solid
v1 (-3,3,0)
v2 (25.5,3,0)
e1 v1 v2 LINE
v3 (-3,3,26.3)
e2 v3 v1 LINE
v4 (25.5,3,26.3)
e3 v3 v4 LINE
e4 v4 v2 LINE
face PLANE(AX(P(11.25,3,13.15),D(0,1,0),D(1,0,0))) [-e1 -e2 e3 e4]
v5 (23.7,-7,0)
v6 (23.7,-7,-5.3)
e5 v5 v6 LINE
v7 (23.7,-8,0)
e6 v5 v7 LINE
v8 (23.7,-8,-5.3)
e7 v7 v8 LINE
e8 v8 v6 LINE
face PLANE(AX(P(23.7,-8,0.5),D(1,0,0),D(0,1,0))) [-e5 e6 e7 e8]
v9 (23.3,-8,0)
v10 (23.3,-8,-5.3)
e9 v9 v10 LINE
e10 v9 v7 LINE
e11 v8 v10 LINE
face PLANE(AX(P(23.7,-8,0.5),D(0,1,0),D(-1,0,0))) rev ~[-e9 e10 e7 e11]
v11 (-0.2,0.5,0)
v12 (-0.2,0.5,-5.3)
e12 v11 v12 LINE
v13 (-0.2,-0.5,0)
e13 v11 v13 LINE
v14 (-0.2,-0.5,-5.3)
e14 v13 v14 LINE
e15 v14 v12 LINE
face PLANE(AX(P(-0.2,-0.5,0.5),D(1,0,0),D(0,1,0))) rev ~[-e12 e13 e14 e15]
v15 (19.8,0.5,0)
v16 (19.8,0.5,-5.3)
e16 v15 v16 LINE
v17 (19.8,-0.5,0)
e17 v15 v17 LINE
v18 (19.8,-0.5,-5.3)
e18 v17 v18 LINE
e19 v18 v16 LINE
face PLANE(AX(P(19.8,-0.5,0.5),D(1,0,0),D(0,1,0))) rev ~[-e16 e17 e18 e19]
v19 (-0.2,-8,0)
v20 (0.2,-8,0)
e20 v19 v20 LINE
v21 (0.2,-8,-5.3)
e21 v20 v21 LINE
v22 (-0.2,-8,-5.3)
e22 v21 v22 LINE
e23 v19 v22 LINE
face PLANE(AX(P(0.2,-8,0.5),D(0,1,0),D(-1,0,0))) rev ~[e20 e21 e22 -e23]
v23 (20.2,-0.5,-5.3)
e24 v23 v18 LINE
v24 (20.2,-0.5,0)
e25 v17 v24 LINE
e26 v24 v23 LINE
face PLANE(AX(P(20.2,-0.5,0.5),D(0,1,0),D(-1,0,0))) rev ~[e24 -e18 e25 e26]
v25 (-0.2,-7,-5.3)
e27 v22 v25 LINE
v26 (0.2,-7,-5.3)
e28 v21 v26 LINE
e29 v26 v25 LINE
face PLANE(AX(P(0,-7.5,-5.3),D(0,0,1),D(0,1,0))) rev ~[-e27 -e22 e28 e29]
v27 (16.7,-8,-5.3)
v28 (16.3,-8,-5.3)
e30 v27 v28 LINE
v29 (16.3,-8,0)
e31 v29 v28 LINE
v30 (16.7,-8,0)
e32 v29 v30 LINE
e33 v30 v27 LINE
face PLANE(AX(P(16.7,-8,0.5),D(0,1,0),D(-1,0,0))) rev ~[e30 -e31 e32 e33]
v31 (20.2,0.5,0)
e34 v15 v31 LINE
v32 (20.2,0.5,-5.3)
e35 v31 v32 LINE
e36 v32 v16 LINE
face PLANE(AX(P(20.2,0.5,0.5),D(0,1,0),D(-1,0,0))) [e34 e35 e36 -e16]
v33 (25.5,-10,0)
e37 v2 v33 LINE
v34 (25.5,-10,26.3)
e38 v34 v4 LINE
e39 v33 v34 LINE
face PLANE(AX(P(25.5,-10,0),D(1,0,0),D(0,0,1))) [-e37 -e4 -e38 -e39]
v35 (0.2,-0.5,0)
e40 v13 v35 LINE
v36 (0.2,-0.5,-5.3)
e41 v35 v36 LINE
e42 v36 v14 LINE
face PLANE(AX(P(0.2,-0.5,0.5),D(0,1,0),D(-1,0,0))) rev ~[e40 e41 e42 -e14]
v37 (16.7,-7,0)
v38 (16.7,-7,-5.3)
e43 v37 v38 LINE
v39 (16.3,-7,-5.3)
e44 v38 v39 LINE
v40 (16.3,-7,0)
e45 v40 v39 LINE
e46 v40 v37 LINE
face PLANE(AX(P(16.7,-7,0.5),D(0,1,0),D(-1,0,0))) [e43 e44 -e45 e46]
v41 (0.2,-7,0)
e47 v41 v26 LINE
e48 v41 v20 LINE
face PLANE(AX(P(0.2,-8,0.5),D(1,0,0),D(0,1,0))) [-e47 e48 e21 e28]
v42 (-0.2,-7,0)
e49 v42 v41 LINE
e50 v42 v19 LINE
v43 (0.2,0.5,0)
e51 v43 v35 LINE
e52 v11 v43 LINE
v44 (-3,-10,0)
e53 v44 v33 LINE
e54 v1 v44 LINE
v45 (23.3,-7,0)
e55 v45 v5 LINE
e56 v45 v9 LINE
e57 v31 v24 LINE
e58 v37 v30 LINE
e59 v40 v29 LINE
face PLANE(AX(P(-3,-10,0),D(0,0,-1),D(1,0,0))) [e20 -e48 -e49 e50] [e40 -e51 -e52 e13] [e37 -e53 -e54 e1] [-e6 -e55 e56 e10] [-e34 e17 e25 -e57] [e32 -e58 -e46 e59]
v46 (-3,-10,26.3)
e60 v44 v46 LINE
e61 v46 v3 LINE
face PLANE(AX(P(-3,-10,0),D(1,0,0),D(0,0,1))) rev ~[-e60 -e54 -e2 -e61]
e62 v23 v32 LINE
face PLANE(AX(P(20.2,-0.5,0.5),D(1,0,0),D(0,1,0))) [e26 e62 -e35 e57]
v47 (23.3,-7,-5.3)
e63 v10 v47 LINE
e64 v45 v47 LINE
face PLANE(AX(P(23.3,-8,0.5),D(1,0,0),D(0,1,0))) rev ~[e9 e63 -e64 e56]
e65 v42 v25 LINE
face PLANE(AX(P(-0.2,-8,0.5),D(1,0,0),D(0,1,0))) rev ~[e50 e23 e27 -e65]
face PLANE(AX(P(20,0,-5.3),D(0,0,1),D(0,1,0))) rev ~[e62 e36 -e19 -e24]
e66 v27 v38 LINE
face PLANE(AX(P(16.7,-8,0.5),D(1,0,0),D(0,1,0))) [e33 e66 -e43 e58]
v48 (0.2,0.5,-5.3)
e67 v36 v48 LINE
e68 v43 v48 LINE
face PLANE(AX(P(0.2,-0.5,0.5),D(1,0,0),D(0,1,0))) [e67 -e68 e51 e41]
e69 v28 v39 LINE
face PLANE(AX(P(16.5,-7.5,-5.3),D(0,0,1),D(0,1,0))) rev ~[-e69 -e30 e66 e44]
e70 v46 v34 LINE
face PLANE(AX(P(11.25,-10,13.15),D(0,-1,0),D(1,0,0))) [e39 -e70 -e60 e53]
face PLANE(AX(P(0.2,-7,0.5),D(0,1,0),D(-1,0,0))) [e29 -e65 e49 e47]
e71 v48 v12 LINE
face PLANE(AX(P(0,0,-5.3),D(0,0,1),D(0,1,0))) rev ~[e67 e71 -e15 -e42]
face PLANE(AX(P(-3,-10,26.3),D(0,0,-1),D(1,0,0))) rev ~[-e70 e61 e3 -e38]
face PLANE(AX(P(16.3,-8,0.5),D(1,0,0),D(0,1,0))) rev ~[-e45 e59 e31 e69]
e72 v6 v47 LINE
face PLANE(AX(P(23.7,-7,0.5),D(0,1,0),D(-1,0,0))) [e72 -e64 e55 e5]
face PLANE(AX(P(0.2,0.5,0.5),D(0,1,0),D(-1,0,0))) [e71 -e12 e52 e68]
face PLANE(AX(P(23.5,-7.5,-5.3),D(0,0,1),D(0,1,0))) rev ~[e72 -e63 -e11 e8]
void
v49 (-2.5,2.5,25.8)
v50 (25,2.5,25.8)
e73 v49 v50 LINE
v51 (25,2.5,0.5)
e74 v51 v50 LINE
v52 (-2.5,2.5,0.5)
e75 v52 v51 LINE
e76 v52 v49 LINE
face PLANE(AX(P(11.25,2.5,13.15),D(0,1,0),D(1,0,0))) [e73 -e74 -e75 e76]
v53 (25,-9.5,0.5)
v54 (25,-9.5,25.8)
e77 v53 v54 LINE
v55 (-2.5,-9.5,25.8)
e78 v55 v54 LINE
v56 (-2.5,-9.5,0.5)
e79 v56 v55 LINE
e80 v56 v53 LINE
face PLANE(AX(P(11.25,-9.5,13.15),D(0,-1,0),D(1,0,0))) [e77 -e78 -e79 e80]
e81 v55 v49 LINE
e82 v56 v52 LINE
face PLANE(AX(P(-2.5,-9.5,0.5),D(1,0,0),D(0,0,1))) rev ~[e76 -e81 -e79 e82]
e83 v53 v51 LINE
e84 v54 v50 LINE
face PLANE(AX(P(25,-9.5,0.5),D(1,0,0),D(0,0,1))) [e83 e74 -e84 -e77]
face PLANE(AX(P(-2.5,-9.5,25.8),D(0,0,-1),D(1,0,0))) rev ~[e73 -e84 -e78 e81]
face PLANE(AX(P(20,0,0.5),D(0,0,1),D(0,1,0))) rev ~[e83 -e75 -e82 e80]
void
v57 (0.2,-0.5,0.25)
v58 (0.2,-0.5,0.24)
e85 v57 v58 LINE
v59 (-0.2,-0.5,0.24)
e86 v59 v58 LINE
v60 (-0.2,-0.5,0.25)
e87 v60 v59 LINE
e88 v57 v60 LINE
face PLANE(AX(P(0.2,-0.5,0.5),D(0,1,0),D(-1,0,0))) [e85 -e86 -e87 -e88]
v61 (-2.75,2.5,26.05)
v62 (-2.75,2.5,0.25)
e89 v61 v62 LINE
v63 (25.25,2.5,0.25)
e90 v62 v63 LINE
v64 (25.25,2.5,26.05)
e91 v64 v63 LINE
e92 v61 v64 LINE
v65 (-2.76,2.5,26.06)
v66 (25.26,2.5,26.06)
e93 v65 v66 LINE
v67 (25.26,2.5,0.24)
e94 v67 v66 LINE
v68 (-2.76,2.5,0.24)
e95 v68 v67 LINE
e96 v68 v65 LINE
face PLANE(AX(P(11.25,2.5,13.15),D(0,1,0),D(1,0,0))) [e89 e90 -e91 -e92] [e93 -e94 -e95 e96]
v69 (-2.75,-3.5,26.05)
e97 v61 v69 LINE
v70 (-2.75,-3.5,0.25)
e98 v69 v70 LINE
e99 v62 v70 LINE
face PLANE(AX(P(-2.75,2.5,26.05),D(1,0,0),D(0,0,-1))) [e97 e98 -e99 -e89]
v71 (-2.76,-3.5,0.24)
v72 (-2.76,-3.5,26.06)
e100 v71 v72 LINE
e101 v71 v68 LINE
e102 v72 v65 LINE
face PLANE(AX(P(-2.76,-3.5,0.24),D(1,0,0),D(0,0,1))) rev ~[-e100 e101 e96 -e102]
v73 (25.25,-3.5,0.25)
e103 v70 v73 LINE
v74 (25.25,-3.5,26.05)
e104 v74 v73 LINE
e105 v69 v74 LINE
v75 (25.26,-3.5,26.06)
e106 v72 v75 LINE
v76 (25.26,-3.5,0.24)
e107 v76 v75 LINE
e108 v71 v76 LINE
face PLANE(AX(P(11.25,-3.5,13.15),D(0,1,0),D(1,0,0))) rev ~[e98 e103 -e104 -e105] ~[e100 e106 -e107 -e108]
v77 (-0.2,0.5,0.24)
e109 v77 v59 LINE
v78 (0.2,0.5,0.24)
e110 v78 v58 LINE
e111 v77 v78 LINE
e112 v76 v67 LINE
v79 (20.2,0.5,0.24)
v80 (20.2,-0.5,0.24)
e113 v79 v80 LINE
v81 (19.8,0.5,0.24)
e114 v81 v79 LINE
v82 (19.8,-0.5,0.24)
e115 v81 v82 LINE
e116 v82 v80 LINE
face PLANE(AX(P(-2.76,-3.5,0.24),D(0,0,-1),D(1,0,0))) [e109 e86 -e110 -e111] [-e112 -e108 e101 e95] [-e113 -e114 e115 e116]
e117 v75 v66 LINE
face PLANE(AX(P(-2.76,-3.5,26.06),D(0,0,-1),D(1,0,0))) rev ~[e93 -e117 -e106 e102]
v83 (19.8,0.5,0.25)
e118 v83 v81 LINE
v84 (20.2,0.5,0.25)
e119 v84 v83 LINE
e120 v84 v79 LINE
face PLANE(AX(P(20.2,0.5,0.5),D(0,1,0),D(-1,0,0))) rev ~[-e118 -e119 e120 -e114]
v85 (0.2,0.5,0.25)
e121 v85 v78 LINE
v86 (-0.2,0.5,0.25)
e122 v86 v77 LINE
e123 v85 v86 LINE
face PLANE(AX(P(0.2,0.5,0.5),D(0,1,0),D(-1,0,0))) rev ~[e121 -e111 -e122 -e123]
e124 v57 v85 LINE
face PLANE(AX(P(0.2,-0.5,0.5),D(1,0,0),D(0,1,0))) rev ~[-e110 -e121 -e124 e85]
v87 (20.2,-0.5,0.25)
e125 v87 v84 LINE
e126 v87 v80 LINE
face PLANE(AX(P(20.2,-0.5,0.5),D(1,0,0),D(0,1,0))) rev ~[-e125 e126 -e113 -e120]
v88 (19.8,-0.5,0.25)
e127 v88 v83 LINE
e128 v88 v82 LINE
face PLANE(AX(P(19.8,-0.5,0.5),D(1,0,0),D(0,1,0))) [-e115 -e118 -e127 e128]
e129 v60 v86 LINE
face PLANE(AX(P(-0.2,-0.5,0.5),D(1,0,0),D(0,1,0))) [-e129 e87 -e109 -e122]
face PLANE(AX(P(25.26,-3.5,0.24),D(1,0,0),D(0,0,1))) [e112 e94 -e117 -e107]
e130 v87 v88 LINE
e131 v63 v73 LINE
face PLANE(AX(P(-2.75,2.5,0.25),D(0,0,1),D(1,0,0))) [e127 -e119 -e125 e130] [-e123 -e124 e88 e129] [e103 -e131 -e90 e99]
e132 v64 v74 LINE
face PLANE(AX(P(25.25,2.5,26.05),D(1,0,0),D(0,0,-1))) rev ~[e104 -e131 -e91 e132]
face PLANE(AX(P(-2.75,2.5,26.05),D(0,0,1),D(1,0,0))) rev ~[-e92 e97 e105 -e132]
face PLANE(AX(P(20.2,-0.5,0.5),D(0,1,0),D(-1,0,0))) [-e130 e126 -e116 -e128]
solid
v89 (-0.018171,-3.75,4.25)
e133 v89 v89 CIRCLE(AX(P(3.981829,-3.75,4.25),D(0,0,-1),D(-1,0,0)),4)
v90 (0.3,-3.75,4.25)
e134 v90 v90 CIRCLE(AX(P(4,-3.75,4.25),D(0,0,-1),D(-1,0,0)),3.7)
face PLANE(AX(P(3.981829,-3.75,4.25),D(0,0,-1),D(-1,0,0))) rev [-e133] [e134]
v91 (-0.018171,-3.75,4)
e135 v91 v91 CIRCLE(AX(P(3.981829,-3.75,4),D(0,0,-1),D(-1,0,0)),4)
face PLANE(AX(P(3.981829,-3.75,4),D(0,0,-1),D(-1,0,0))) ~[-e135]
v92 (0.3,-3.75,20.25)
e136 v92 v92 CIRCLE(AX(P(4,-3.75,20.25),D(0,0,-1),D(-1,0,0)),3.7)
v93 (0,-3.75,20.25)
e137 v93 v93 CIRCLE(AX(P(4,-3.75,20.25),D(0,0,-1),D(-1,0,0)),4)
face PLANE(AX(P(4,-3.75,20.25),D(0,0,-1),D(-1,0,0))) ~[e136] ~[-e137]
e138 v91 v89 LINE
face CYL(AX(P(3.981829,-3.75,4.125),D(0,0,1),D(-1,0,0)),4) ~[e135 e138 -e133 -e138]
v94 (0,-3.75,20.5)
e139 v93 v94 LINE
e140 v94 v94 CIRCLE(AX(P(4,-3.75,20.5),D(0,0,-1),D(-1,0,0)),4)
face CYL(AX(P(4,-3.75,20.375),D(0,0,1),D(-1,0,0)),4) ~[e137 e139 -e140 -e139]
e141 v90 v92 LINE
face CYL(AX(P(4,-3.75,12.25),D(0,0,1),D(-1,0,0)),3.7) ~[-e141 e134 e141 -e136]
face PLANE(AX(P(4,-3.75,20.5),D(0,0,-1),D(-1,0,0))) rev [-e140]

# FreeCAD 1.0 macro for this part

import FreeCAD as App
import Part
import Sketcher
Q = App.Units.Quantity

doc = App.newDocument("Part")
params = doc.addObject("Spreadsheet::Sheet", "Params")
for row, (alias, value) in enumerate([
    ("sketch1_width", "28.5 mm"),
    ("sketch1_width2", "27.5 mm"),
    ("sketch1_height", "26.3 mm"),
    ("sketch1_height2", "25.3 mm"),
    ("pad1_length", "12 mm"),
    ("sketch2_width", "28 mm"),
    ("sketch2_width2", "28.5 mm"),
    ("sketch2_height", "26.3 mm"),
    ("sketch2_height2", "25.8 mm"),
    ("pocket1_length", "6 mm"),
    ("sketch3_width", "28.5 mm"),
    ("sketch3_height", "26.3 mm"),
    ("pad2_length", "0.5 mm"),
    ("sketch4_height", "16 mm"),
    ("sketch4_width", "3.7 mm"),
    ("revolution_angle", "360 deg"),
    ("sketch5_width", "4 mm"),
    ("sketch5_height", "0.25 mm"),
    ("revolution2_angle", "360 deg"),
    ("sketch6_width", "4 mm"),
    ("sketch6_height", "0.25 mm"),
    ("revolution3_angle", "360 deg"),
    ("sketch7_height", "1 mm"),
    ("sketch7_width", "0.4 mm"),
    ("pad3_length", "5.8 mm"),
    ("sketch8_width", "28.5 mm"),
    ("sketch8_height", "26.3 mm"),
    ("sketch8_width2", "28.02 mm"),
    ("sketch8_height2", "25.82 mm"),
    ("pad4_length", "6 mm"),
    ("sketch9_width", "28.5 mm"),
    ("sketch9_height", "26.3 mm"),
    ("pad5_length", "0.5 mm"),
], start=1):
    params.set(f"A{row}", alias)
    params.set(f"B{row}", "=" + value)
    params.setAlias(f"B{row}", alias)

body = doc.addObject("PartDesign::Body", "Body")

# Sketch on XZ plane
sketch1 = body.newObject("Sketcher::SketchObject", "Sketch")
sketch1.AttachmentSupport = (doc.getObject("XZ_Plane"), [""])
sketch1.MapMode = "FlatFace"
sketch1.AttachmentOffset = App.Placement(App.Vector(0, 0, 9.5), App.Rotation())
sketch1.addGeometry([
    Part.LineSegment(App.Vector(-3, 26, 0), App.Vector(-3, 0, 0)),  # 0
    Part.LineSegment(App.Vector(-3, 0, 0), App.Vector(26, 0, 0)),  # 1
    Part.LineSegment(App.Vector(26, 0, 0), App.Vector(26, 26, 0)),  # 2
    Part.LineSegment(App.Vector(26, 26, 0), App.Vector(-3, 26, 0)),  # 3
    Part.LineSegment(App.Vector(25, 0, 0), App.Vector(-2, 0, 0)),  # 4
    Part.LineSegment(App.Vector(-2, 0, 0), App.Vector(-2, 26, 0)),  # 5
    Part.LineSegment(App.Vector(-2, 26, 0), App.Vector(25, 26, 0)),  # 6
    Part.LineSegment(App.Vector(25, 26, 0), App.Vector(25, 0, 0)),  # 7
], False)
sketch1.addConstraint([
    Sketcher.Constraint("Coincident", 0, 2, 1, 1),
    Sketcher.Constraint("Coincident", 1, 2, 2, 1),
    Sketcher.Constraint("Coincident", 2, 2, 3, 1),
    Sketcher.Constraint("Coincident", 3, 2, 0, 1),
    Sketcher.Constraint("Coincident", 4, 2, 5, 1),
    Sketcher.Constraint("Coincident", 5, 2, 6, 1),
    Sketcher.Constraint("Coincident", 6, 2, 7, 1),
    Sketcher.Constraint("Coincident", 7, 2, 4, 1),
    Sketcher.Constraint("Vertical", 0),
    Sketcher.Constraint("Horizontal", 1),
    Sketcher.Constraint("Vertical", 2),
    Sketcher.Constraint("Horizontal", 3),
    Sketcher.Constraint("Horizontal", 4),
    Sketcher.Constraint("Vertical", 5),
    Sketcher.Constraint("Horizontal", 6),
    Sketcher.Constraint("Vertical", 7),
    Sketcher.Constraint("PointOnObject", 0, 2, -1),
    Sketcher.Constraint("DistanceX", 1, 1, 1, 2, Q("28.5 mm")),
    Sketcher.Constraint("DistanceX", 4, 2, 4, 1, Q("27.5 mm")),
    Sketcher.Constraint("DistanceY", 0, 2, 0, 1, Q("26.3 mm")),
    Sketcher.Constraint("DistanceY", 5, 1, 5, 2, Q("25.3 mm")),
    Sketcher.Constraint("DistanceX", 0, 2, -1, 1, Q("3 mm")),
    Sketcher.Constraint("DistanceX", -1, 1, 6, 2, Q("25 mm")),
    Sketcher.Constraint("DistanceY", -1, 1, 4, 2, Q("0.5 mm")),
])
sketch1.setExpression("Constraints[17]", "Params.sketch1_width")
sketch1.setExpression("Constraints[18]", "Params.sketch1_width2")
sketch1.setExpression("Constraints[19]", "Params.sketch1_height")
sketch1.setExpression("Constraints[20]", "Params.sketch1_height2")
pad1 = body.newObject("PartDesign::Pad", "Pad")
pad1.Profile = sketch1
pad1.setExpression("Length", "Params.pad1_length")
pad1.Reversed = True

# Sketch on XZ plane
sketch2 = body.newObject("Sketcher::SketchObject", "Sketch001")
sketch2.AttachmentSupport = (doc.getObject("XZ_Plane"), [""])
sketch2.MapMode = "FlatFace"
sketch2.AttachmentOffset = App.Placement(App.Vector(0, 0, -2.5), App.Rotation())
sketch2.addGeometry([
    Part.LineSegment(App.Vector(-3, 0, 0), App.Vector(-3, 26, 0)),  # 0
    Part.LineSegment(App.Vector(-3, 26, 0), App.Vector(26, 26, 0)),  # 1
    Part.LineSegment(App.Vector(26, 26, 0), App.Vector(26, 0, 0)),  # 2
    Part.LineSegment(App.Vector(26, 0, 0), App.Vector(-3, 0, 0)),  # 3
    Part.LineSegment(App.Vector(25, 26, 0), App.Vector(-3, 26, 0)),  # 4
    Part.LineSegment(App.Vector(-3, 26, 0), App.Vector(-3, 0, 0)),  # 5
    Part.LineSegment(App.Vector(-3, 0, 0), App.Vector(25, 0, 0)),  # 6
    Part.LineSegment(App.Vector(25, 0, 0), App.Vector(25, 26, 0)),  # 7
], False)
sketch2.addConstraint([
    Sketcher.Constraint("Coincident", 0, 2, 1, 1),
    Sketcher.Constraint("Coincident", 1, 2, 2, 1),
    Sketcher.Constraint("Coincident", 2, 2, 3, 1),
    Sketcher.Constraint("Coincident", 3, 2, 0, 1),
    Sketcher.Constraint("Coincident", 4, 2, 5, 1),
    Sketcher.Constraint("Coincident", 5, 2, 6, 1),
    Sketcher.Constraint("Coincident", 6, 2, 7, 1),
    Sketcher.Constraint("Coincident", 7, 2, 4, 1),
    Sketcher.Constraint("Vertical", 0),
    Sketcher.Constraint("Horizontal", 1),
    Sketcher.Constraint("Vertical", 2),
    Sketcher.Constraint("Horizontal", 3),
    Sketcher.Constraint("Horizontal", 4),
    Sketcher.Constraint("Vertical", 5),
    Sketcher.Constraint("Horizontal", 6),
    Sketcher.Constraint("Vertical", 7),
    Sketcher.Constraint("PointOnObject", 2, 2, -1),
    Sketcher.Constraint("DistanceX", 4, 2, 4, 1, Q("28 mm")),
    Sketcher.Constraint("DistanceX", 1, 1, 1, 2, Q("28.5 mm")),
    Sketcher.Constraint("DistanceY", 0, 1, 0, 2, Q("26.3 mm")),
    Sketcher.Constraint("DistanceY", 5, 2, 5, 1, Q("25.8 mm")),
    Sketcher.Constraint("DistanceX", 0, 2, -1, 1, Q("3 mm")),
    Sketcher.Constraint("DistanceX", 4, 2, -1, 1, Q("2.75 mm")),
    Sketcher.Constraint("DistanceY", -1, 1, 4, 2, Q("26.05 mm")),
])
sketch2.setExpression("Constraints[17]", "Params.sketch2_width")
sketch2.setExpression("Constraints[18]", "Params.sketch2_width2")
sketch2.setExpression("Constraints[19]", "Params.sketch2_height")
sketch2.setExpression("Constraints[20]", "Params.sketch2_height2")
pocket1 = body.newObject("PartDesign::Pocket", "Pocket")
pocket1.Profile = sketch2
pocket1.setExpression("Length", "Params.pocket1_length")
pocket1.Reversed = True
body2 = doc.addObject("PartDesign::Body", "Body001")

# Sketch on XZ plane
sketch3 = body2.newObject("Sketcher::SketchObject", "Sketch002")
sketch3.AttachmentSupport = (doc.getObject("XZ_Plane001"), [""])
sketch3.MapMode = "FlatFace"
sketch3.AttachmentOffset = App.Placement(App.Vector(0, 0, 10), App.Rotation())
sketch3.addGeometry([
    Part.LineSegment(App.Vector(-3, 26, 0), App.Vector(-3, 0, 0)),
    Part.LineSegment(App.Vector(-3, 0, 0), App.Vector(26, 0, 0)),
    Part.LineSegment(App.Vector(26, 0, 0), App.Vector(26, 26, 0)),
    Part.LineSegment(App.Vector(26, 26, 0), App.Vector(-3, 26, 0)),
], False)
sketch3.addConstraint([
    Sketcher.Constraint("Coincident", 0, 2, 1, 1),
    Sketcher.Constraint("Coincident", 1, 2, 2, 1),
    Sketcher.Constraint("Coincident", 2, 2, 3, 1),
    Sketcher.Constraint("Coincident", 3, 2, 0, 1),
    Sketcher.Constraint("Vertical", 0),
    Sketcher.Constraint("Horizontal", 1),
    Sketcher.Constraint("Vertical", 2),
    Sketcher.Constraint("Horizontal", 3),
    Sketcher.Constraint("PointOnObject", 0, 2, -1),
    Sketcher.Constraint("DistanceX", 1, 1, 1, 2, Q("28.5 mm")),
    Sketcher.Constraint("DistanceY", 0, 2, 0, 1, Q("26.3 mm")),
    Sketcher.Constraint("DistanceX", 0, 2, -1, 1, Q("3 mm")),
])
sketch3.setExpression("Constraints[9]", "Params.sketch3_width")
sketch3.setExpression("Constraints[10]", "Params.sketch3_height")
pad2 = body2.newObject("PartDesign::Pad", "Pad001")
pad2.Profile = sketch3
pad2.setExpression("Length", "Params.pad2_length")
pad2.Reversed = True
body3 = doc.addObject("PartDesign::Body", "Body002")

# Sketch on XZ plane
sketch4 = body3.newObject("Sketcher::SketchObject", "Sketch003")
sketch4.AttachmentSupport = (doc.getObject("XZ_Plane002"), [""])
sketch4.MapMode = "FlatFace"
sketch4.AttachmentOffset = App.Placement(App.Vector(0, 0, 3.75), App.Rotation())
sketch4.addGeometry([
    Part.LineSegment(App.Vector(4, 20.2, 0), App.Vector(4, 4.2, 0)),
    Part.LineSegment(App.Vector(4, 4.2, 0), App.Vector(0.3, 4.2, 0)),
    Part.LineSegment(App.Vector(0.3, 4.2, 0), App.Vector(0.3, 20.2, 0)),
    Part.LineSegment(App.Vector(0.3, 20.2, 0), App.Vector(4, 20.2, 0)),
], False)
sketch4.addGeometry(Part.LineSegment(App.Vector(4, 20.2, 0), App.Vector(4, 4.2, 0)), True)  # axis
sketch4.addConstraint([
    Sketcher.Constraint("Coincident", 0, 2, 1, 1),
    Sketcher.Constraint("Coincident", 1, 2, 2, 1),
    Sketcher.Constraint("Coincident", 2, 2, 3, 1),
    Sketcher.Constraint("Coincident", 3, 2, 0, 1),
    Sketcher.Constraint("Vertical", 0),
    Sketcher.Constraint("Horizontal", 1),
    Sketcher.Constraint("Vertical", 2),
    Sketcher.Constraint("Horizontal", 3),
    Sketcher.Constraint("Vertical", 4),
    Sketcher.Constraint("Coincident", 4, 1, 3, 2),
    Sketcher.Constraint("Horizontal", 1, 2, 4, 2),
    Sketcher.Constraint("DistanceY", 0, 2, 0, 1, Q("16 mm")),
    Sketcher.Constraint("DistanceX", 1, 2, 1, 1, Q("3.7 mm")),
    Sketcher.Constraint("DistanceX", -1, 1, 0, 2, Q("4 mm")),
    Sketcher.Constraint("DistanceY", -1, 1, 0, 2, Q("4.25 mm")),
])
sketch4.setExpression("Constraints[11]", "Params.sketch4_height")
sketch4.setExpression("Constraints[12]", "Params.sketch4_width")
revolution = body3.newObject("PartDesign::Revolution", "Revolution")
revolution.Profile = sketch4
revolution.ReferenceAxis = (sketch4, ["Axis0"])
revolution.setExpression("Angle", "Params.revolution_angle")
body4 = doc.addObject("PartDesign::Body", "Body003")

# Sketch on XZ plane
sketch5 = body4.newObject("Sketcher::SketchObject", "Sketch004")
sketch5.AttachmentSupport = (doc.getObject("XZ_Plane003"), [""])
sketch5.MapMode = "FlatFace"
sketch5.AttachmentOffset = App.Placement(App.Vector(0, 0, 3.75), App.Rotation())
sketch5.addGeometry([
    Part.LineSegment(App.Vector(3.98, 4.25, 0), App.Vector(3.98, 4, 0)),
    Part.LineSegment(App.Vector(3.98, 4, 0), App.Vector(-0.02, 4, 0)),
    Part.LineSegment(App.Vector(-0.02, 4, 0), App.Vector(-0.02, 4.25, 0)),
    Part.LineSegment(App.Vector(-0.02, 4.25, 0), App.Vector(3.98, 4.25, 0)),
], False)
sketch5.addGeometry(Part.LineSegment(App.Vector(3.98, 4.25, 0), App.Vector(3.98, 4, 0)), True)  # axis
sketch5.addConstraint([
    Sketcher.Constraint("Coincident", 0, 2, 1, 1),
    Sketcher.Constraint("Coincident", 1, 2, 2, 1),
    Sketcher.Constraint("Coincident", 2, 2, 3, 1),
    Sketcher.Constraint("Coincident", 3, 2, 0, 1),
    Sketcher.Constraint("Vertical", 0),
    Sketcher.Constraint("Horizontal", 1),
    Sketcher.Constraint("Vertical", 2),
    Sketcher.Constraint("Horizontal", 3),
    Sketcher.Constraint("Vertical", 4),
    Sketcher.Constraint("Coincident", 4, 1, 3, 2),
    Sketcher.Constraint("Horizontal", 1, 2, 4, 2),
    Sketcher.Constraint("DistanceX", 1, 2, 1, 1, Q("4 mm")),
    Sketcher.Constraint("DistanceY", -1, 1, 0, 2, Q("4 mm")),
    Sketcher.Constraint("DistanceY", 0, 2, 0, 1, Q("0.25 mm")),
    Sketcher.Constraint("DistanceX", -1, 1, 0, 2, Q("3.981829 mm")),
])
sketch5.setExpression("Constraints[11]", "Params.sketch5_width")
sketch5.setExpression("Constraints[13]", "Params.sketch5_height")
revolution2 = body4.newObject("PartDesign::Revolution", "Revolution001")
revolution2.Profile = sketch5
revolution2.ReferenceAxis = (sketch5, ["Axis0"])
revolution2.setExpression("Angle", "Params.revolution2_angle")
body5 = doc.addObject("PartDesign::Body", "Body004")

# Sketch on XZ plane
sketch6 = body5.newObject("Sketcher::SketchObject", "Sketch005")
sketch6.AttachmentSupport = (doc.getObject("XZ_Plane004"), [""])
sketch6.MapMode = "FlatFace"
sketch6.AttachmentOffset = App.Placement(App.Vector(0, 0, 3.75), App.Rotation())
sketch6.addGeometry([
    Part.LineSegment(App.Vector(4, 20.5, 0), App.Vector(4, 20.25, 0)),
    Part.LineSegment(App.Vector(4, 20.25, 0), App.Vector(0, 20.25, 0)),
    Part.LineSegment(App.Vector(0, 20.25, 0), App.Vector(0, 20.5, 0)),
    Part.LineSegment(App.Vector(0, 20.5, 0), App.Vector(4, 20.5, 0)),
], False)
sketch6.addGeometry(Part.LineSegment(App.Vector(4, 20.5, 0), App.Vector(4, 20.25, 0)), True)  # axis
sketch6.addConstraint([
    Sketcher.Constraint("Coincident", 0, 2, 1, 1),
    Sketcher.Constraint("Coincident", 1, 2, 2, 1),
    Sketcher.Constraint("Coincident", 2, 2, 3, 1),
    Sketcher.Constraint("Coincident", 3, 2, 0, 1),
    Sketcher.Constraint("Vertical", 0),
    Sketcher.Constraint("Horizontal", 1),
    Sketcher.Constraint("Vertical", 2),
    Sketcher.Constraint("Horizontal", 3),
    Sketcher.Constraint("Vertical", 4),
    Sketcher.Constraint("Coincident", 4, 1, 3, 2),
    Sketcher.Constraint("PointOnObject", 1, 2, -2),
    Sketcher.Constraint("Horizontal", 1, 2, 4, 2),
    Sketcher.Constraint("DistanceX", 1, 2, 1, 1, Q("4 mm")),
    Sketcher.Constraint("DistanceY", 0, 2, 0, 1, Q("0.25 mm")),
    Sketcher.Constraint("DistanceY", -1, 1, 2, 2, Q("20.5 mm")),
])
sketch6.setExpression("Constraints[12]", "Params.sketch6_width")
sketch6.setExpression("Constraints[13]", "Params.sketch6_height")
revolution3 = body5.newObject("PartDesign::Revolution", "Revolution002")
revolution3.Profile = sketch6
revolution3.ReferenceAxis = (sketch6, ["Axis0"])
revolution3.setExpression("Angle", "Params.revolution3_angle")
body6 = doc.addObject("PartDesign::Body", "Body005")
body6.AllowCompound = True

# Sketch on XY plane
sketch7 = body6.newObject("Sketcher::SketchObject", "Sketch006")
sketch7.AttachmentSupport = (doc.getObject("XY_Plane005"), [""])
sketch7.MapMode = "FlatFace"
sketch7.AttachmentOffset = App.Placement(App.Vector(0, 0, 0.5), App.Rotation())
sketch7.addGeometry([
    Part.LineSegment(App.Vector(-0.2, -8, 0), App.Vector(0.2, -8, 0)),  # 0
    Part.LineSegment(App.Vector(0.2, -8, 0), App.Vector(0.2, -7, 0)),  # 1
    Part.LineSegment(App.Vector(0.2, -7, 0), App.Vector(-0.2, -7, 0)),  # 2
    Part.LineSegment(App.Vector(-0.2, -7, 0), App.Vector(-0.2, -8, 0)),  # 3
    Part.LineSegment(App.Vector(-0.2, -0.5, 0), App.Vector(0.2, -0.5, 0)),  # 4
    Part.LineSegment(App.Vector(0.2, -0.5, 0), App.Vector(0.2, 0.5, 0)),  # 5
    Part.LineSegment(App.Vector(0.2, 0.5, 0), App.Vector(-0.2, 0.5, 0)),  # 6
    Part.LineSegment(App.Vector(-0.2, 0.5, 0), App.Vector(-0.2, -0.5, 0)),  # 7
    Part.LineSegment(App.Vector(16.3, -8, 0), App.Vector(16.7, -8, 0)),  # 8
    Part.LineSegment(App.Vector(16.7, -8, 0), App.Vector(16.7, -7, 0)),  # 9
    Part.LineSegment(App.Vector(16.7, -7, 0), App.Vector(16.3, -7, 0)),  # 10
    Part.LineSegment(App.Vector(16.3, -7, 0), App.Vector(16.3, -8, 0)),  # 11
    Part.LineSegment(App.Vector(23.3, -8, 0), App.Vector(23.7, -8, 0)),  # 12
    Part.LineSegment(App.Vector(23.7, -8, 0), App.Vector(23.7, -7, 0)),  # 13
    Part.LineSegment(App.Vector(23.7, -7, 0), App.Vector(23.3, -7, 0)),  # 14
    Part.LineSegment(App.Vector(23.3, -7, 0), App.Vector(23.3, -8, 0)),  # 15
    Part.LineSegment(App.Vector(19.8, -0.5, 0), App.Vector(20.2, -0.5, 0)),  # 16
    Part.LineSegment(App.Vector(20.2, -0.5, 0), App.Vector(20.2, 0.5, 0)),  # 17
    Part.LineSegment(App.Vector(20.2, 0.5, 0), App.Vector(19.8, 0.5, 0)),  # 18
    Part.LineSegment(App.Vector(19.8, 0.5, 0), App.Vector(19.8, -0.5, 0)),  # 19
], False)
sketch7.addConstraint([
    Sketcher.Constraint("Coincident", 0, 2, 1, 1),
    Sketcher.Constraint("Coincident", 1, 2, 2, 1),
    Sketcher.Constraint("Coincident", 2, 2, 3, 1),
    Sketcher.Constraint("Coincident", 3, 2, 0, 1),
    Sketcher.Constraint("Coincident", 4, 2, 5, 1),
    Sketcher.Constraint("Coincident", 5, 2, 6, 1),
    Sketcher.Constraint("Coincident", 6, 2, 7, 1),
    Sketcher.Constraint("Coincident", 7, 2, 4, 1),
    Sketcher.Constraint("Coincident", 8, 2, 9, 1),
    Sketcher.Constraint("Coincident", 9, 2, 10, 1),
    Sketcher.Constraint("Coincident", 10, 2, 11, 1),
    Sketcher.Constraint("Coincident", 11, 2, 8, 1),
    Sketcher.Constraint("Coincident", 12, 2, 13, 1),
    Sketcher.Constraint("Coincident", 13, 2, 14, 1),
    Sketcher.Constraint("Coincident", 14, 2, 15, 1),
    Sketcher.Constraint("Coincident", 15, 2, 12, 1),
    Sketcher.Constraint("Coincident", 16, 2, 17, 1),
    Sketcher.Constraint("Coincident", 17, 2, 18, 1),
    Sketcher.Constraint("Coincident", 18, 2, 19, 1),
    Sketcher.Constraint("Coincident", 19, 2, 16, 1),
    Sketcher.Constraint("Horizontal", 0),
    Sketcher.Constraint("Vertical", 1),
    Sketcher.Constraint("Horizontal", 2),
    Sketcher.Constraint("Vertical", 3),
    Sketcher.Constraint("Horizontal", 4),
    Sketcher.Constraint("Vertical", 5),
    Sketcher.Constraint("Horizontal", 6),
    Sketcher.Constraint("Vertical", 7),
    Sketcher.Constraint("Horizontal", 8),
    Sketcher.Constraint("Vertical", 9),
    Sketcher.Constraint("Horizontal", 10),
    Sketcher.Constraint("Vertical", 11),
    Sketcher.Constraint("Horizontal", 12),
    Sketcher.Constraint("Vertical", 13),
    Sketcher.Constraint("Horizontal", 14),
    Sketcher.Constraint("Vertical", 15),
    Sketcher.Constraint("Horizontal", 16),
    Sketcher.Constraint("Vertical", 17),
    Sketcher.Constraint("Horizontal", 18),
    Sketcher.Constraint("Vertical", 19),
    Sketcher.Constraint("Symmetric", 4, 2, 6, 2, -1, 1),
    Sketcher.Constraint("Horizontal", 3, 2, 8, 2),
    Sketcher.Constraint("Horizontal", 2, 2, 9, 2),
    Sketcher.Constraint("Horizontal", 11, 2, 12, 2),
    Sketcher.Constraint("Horizontal", 10, 2, 13, 2),
    Sketcher.Constraint("Horizontal", 7, 2, 16, 2),
    Sketcher.Constraint("Horizontal", 6, 2, 17, 2),
    Sketcher.Constraint("Vertical", 1, 2, 4, 2),
    Sketcher.Constraint("Vertical", 3, 2, 6, 2),
    Sketcher.Constraint("Equal", 6, 8),
    Sketcher.Constraint("Equal", 10, 12),
    Sketcher.Constraint("Equal", 14, 16),
    Sketcher.Constraint("Equal", 3, 5),
    Sketcher.Constraint("DistanceY", 1, 1, 1, 2, Q("1 mm")),
    Sketcher.Constraint("DistanceX", 0, 1, 0, 2, Q("0.4 mm")),
    Sketcher.Constraint("DistanceY", 0, 2, -1, 1, Q("8 mm")),
    Sketcher.Constraint("DistanceX", 8, 2, 12, 2, Q("7 mm")),
    Sketcher.Constraint("DistanceX", -1, 1, 8, 2, Q("16.7 mm")),
    Sketcher.Constraint("DistanceX", -1, 1, 16, 2, Q("20.2 mm")),
])
sketch7.setExpression("Constraints[53]", "Params.sketch7_height")
sketch7.setExpression("Constraints[54]", "Params.sketch7_width")
pad3 = body6.newObject("PartDesign::Pad", "Pad002")
pad3.Profile = sketch7
pad3.setExpression("Length", "Params.pad3_length")
pad3.Reversed = True
body7 = doc.addObject("PartDesign::Body", "Body006")
body7.AllowCompound = True

# Sketch on XZ plane
sketch8 = body7.newObject("Sketcher::SketchObject", "Sketch007")
sketch8.AttachmentSupport = (doc.getObject("XZ_Plane006"), [""])
sketch8.MapMode = "FlatFace"
sketch8.AttachmentOffset = App.Placement(App.Vector(0, 0, 3.5), App.Rotation())
sketch8.addGeometry([
    Part.LineSegment(App.Vector(-3, 26, 0), App.Vector(-3, 0, 0)),  # 0
    Part.LineSegment(App.Vector(-3, 0, 0), App.Vector(26, 0, 0)),  # 1
    Part.LineSegment(App.Vector(26, 0, 0), App.Vector(26, 26, 0)),  # 2
    Part.LineSegment(App.Vector(26, 26, 0), App.Vector(-3, 26, 0)),  # 3
    Part.LineSegment(App.Vector(25, 0, 0), App.Vector(-3, 0, 0)),  # 4
    Part.LineSegment(App.Vector(-3, 0, 0), App.Vector(-3, 26, 0)),  # 5
    Part.LineSegment(App.Vector(-3, 26, 0), App.Vector(25, 26, 0)),  # 6
    Part.LineSegment(App.Vector(25, 26, 0), App.Vector(25, 0, 0)),  # 7
], False)
sketch8.addConstraint([
    Sketcher.Constraint("Coincident", 0, 2, 1, 1),
    Sketcher.Constraint("Coincident", 1, 2, 2, 1),
    Sketcher.Constraint("Coincident", 2, 2, 3, 1),
    Sketcher.Constraint("Coincident", 3, 2, 0, 1),
    Sketcher.Constraint("Coincident", 4, 2, 5, 1),
    Sketcher.Constraint("Coincident", 5, 2, 6, 1),
    Sketcher.Constraint("Coincident", 6, 2, 7, 1),
    Sketcher.Constraint("Coincident", 7, 2, 4, 1),
    Sketcher.Constraint("Vertical", 0),
    Sketcher.Constraint("Horizontal", 1),
    Sketcher.Constraint("Vertical", 2),
    Sketcher.Constraint("Horizontal", 3),
    Sketcher.Constraint("Horizontal", 4),
    Sketcher.Constraint("Vertical", 5),
    Sketcher.Constraint("Horizontal", 6),
    Sketcher.Constraint("Vertical", 7),
    Sketcher.Constraint("PointOnObject", 0, 2, -1),
    Sketcher.Constraint("DistanceX", 1, 1, 1, 2, Q("28.5 mm")),
    Sketcher.Constraint("DistanceY", 0, 2, 0, 1, Q("26.3 mm")),
    Sketcher.Constraint("DistanceX", 0, 2, -1, 1, Q("3 mm")),
    Sketcher.Constraint("DistanceX", 4, 2, 4, 1, Q("28.02 mm")),
    Sketcher.Constraint("DistanceY", 5, 1, 5, 2, Q("25.82 mm")),
    Sketcher.Constraint("DistanceX", 4, 2, -1, 1, Q("2.76 mm")),
    Sketcher.Constraint("DistanceY", -1, 1, 4, 2, Q("0.24 mm")),
])
sketch8.setExpression("Constraints[17]", "Params.sketch8_width")
sketch8.setExpression("Constraints[18]", "Params.sketch8_height")
sketch8.setExpression("Constraints[20]", "Params.sketch8_width2")
sketch8.setExpression("Constraints[21]", "Params.sketch8_height2")
pad4 = body7.newObject("PartDesign::Pad", "Pad003")
pad4.Profile = sketch8
pad4.setExpression("Length", "Params.pad4_length")
pad4.Reversed = True

# Sketch on XZ plane
sketch9 = body7.newObject("Sketcher::SketchObject", "Sketch008")
sketch9.AttachmentSupport = (doc.getObject("XZ_Plane006"), [""])
sketch9.MapMode = "FlatFace"
sketch9.AttachmentOffset = App.Placement(App.Vector(0, 0, -2.5), App.Rotation())
sketch9.addGeometry([
    Part.LineSegment(App.Vector(-3, 0, 0), App.Vector(-3, 26, 0)),
    Part.LineSegment(App.Vector(-3, 26, 0), App.Vector(26, 26, 0)),
    Part.LineSegment(App.Vector(26, 26, 0), App.Vector(26, 0, 0)),
    Part.LineSegment(App.Vector(26, 0, 0), App.Vector(-3, 0, 0)),
], False)
sketch9.addConstraint([
    Sketcher.Constraint("Coincident", 0, 2, 1, 1),
    Sketcher.Constraint("Coincident", 1, 2, 2, 1),
    Sketcher.Constraint("Coincident", 2, 2, 3, 1),
    Sketcher.Constraint("Coincident", 3, 2, 0, 1),
    Sketcher.Constraint("Vertical", 0),
    Sketcher.Constraint("Horizontal", 1),
    Sketcher.Constraint("Vertical", 2),
    Sketcher.Constraint("Horizontal", 3),
    Sketcher.Constraint("PointOnObject", 2, 2, -1),
    Sketcher.Constraint("DistanceX", 1, 1, 1, 2, Q("28.5 mm")),
    Sketcher.Constraint("DistanceY", 0, 1, 0, 2, Q("26.3 mm")),
    Sketcher.Constraint("DistanceX", 0, 2, -1, 1, Q("3 mm")),
])
sketch9.setExpression("Constraints[9]", "Params.sketch9_width")
sketch9.setExpression("Constraints[10]", "Params.sketch9_height")
pad5 = body7.newObject("PartDesign::Pad", "Pad004")
pad5.Profile = sketch9
pad5.setExpression("Length", "Params.pad5_length")
pad5.Reversed = True
doc.recompute()

boolean = body7.newObject("PartDesign::Boolean", "Boolean")
boolean.Type = "Fuse"
boolean.addObjects([body])
doc.recompute()

boolean2 = body7.newObject("PartDesign::Boolean", "Boolean001")
boolean2.Type = "Fuse"
boolean2.addObjects([body2])
doc.recompute()

boolean3 = body7.newObject("PartDesign::Boolean", "Boolean002")
boolean3.Type = "Fuse"
boolean3.addObjects([body3])
doc.recompute()

boolean4 = body7.newObject("PartDesign::Boolean", "Boolean003")
boolean4.Type = "Fuse"
boolean4.addObjects([body4])
doc.recompute()

boolean5 = body7.newObject("PartDesign::Boolean", "Boolean004")
boolean5.Type = "Fuse"
boolean5.addObjects([body5])
doc.recompute()

boolean6 = body7.newObject("PartDesign::Boolean", "Boolean005")
boolean6.Type = "Fuse"
boolean6.addObjects([body6])

doc.recompute()
